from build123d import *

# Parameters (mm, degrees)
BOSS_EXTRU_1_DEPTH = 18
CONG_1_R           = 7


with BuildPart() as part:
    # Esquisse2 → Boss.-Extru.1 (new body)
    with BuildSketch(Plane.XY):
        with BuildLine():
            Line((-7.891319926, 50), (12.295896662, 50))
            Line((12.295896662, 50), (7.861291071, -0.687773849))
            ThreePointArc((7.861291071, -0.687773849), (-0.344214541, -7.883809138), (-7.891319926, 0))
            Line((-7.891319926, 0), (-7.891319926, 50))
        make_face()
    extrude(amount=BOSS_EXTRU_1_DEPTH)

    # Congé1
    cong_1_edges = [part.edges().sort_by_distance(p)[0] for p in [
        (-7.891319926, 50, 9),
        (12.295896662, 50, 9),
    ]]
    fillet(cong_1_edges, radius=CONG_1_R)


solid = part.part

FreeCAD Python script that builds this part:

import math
import FreeCAD as App
import Part
import Sketcher
from FreeCAD import Vector
Q = App.Units.Quantity


def edges_at(feature, points):
    """Names of the edges that pass closest to the given points."""
    edges = feature.Shape.Edges
    near = lambda p: min(range(len(edges)), key=lambda i: edges[i].distToShape(Part.Vertex(*p))[0])
    return sorted({f"Edge{near(p) + 1}" for p in points})

doc = App.newDocument("Part")
body = doc.addObject("PartDesign::Body", "Body")

# Sketch on XY plane
sketch1 = doc.addObject("Sketcher::SketchObject", "Sketch")
body.addObject(sketch1)
sketch1.AttachmentSupport = (doc.XY_Plane, [""])
sketch1.MapMode = "FlatFace"
sketch1.addGeometry(Part.LineSegment(Vector(12.295897, 50, 0), Vector(-7.89132, 50, 0)), False)
sketch1.addGeometry(Part.LineSegment(Vector(-7.89132, 50, 0), Vector(-7.89132, 0, 0)), False)
sketch1.addGeometry(Part.ArcOfCircle(Part.Circle(Vector(0, 0, 0), Vector(0, 0, 1), 7.89132), math.radians(180), math.radians(355)), False)
sketch1.addGeometry(Part.LineSegment(Vector(7.861291, -0.687774, 0), Vector(12.295897, 50, 0)), False)
sketch1.addConstraint(Sketcher.Constraint("Coincident", 0, 2, 1, 1))
sketch1.addConstraint(Sketcher.Constraint("Tangent", 1, 2, 2, 1))
sketch1.addConstraint(Sketcher.Constraint("Tangent", 2, 2, 3, 1))
sketch1.addConstraint(Sketcher.Constraint("Coincident", 3, 2, 0, 1))
sketch1.addConstraint(Sketcher.Constraint("Horizontal", 0))
sketch1.addConstraint(Sketcher.Constraint("Vertical", 1))
sketch1.addConstraint(Sketcher.Constraint("Coincident", 2, 3, -1, 1))
sketch1.addConstraint(Sketcher.Constraint("DistanceY", 1, 2, 1, 1, 50.0))
sketch1.addConstraint(Sketcher.Constraint("Angle", 3, Q("85 deg")))
sketch1.addConstraint(Sketcher.Constraint("Radius", 2, 7.89132))
pad1 = doc.addObject("PartDesign::Pad", "Pad")
body.addObject(pad1)
pad1.Profile = sketch1
pad1.Length = 18
doc.recompute()

fillet = doc.addObject("PartDesign::Fillet", "Fillet")
body.addObject(fillet)
fillet.Base = (pad1, edges_at(pad1, [(-7.891, 50, 9), (12.296, 50, 9)]))
fillet.Radius = 7

doc.recompute()
